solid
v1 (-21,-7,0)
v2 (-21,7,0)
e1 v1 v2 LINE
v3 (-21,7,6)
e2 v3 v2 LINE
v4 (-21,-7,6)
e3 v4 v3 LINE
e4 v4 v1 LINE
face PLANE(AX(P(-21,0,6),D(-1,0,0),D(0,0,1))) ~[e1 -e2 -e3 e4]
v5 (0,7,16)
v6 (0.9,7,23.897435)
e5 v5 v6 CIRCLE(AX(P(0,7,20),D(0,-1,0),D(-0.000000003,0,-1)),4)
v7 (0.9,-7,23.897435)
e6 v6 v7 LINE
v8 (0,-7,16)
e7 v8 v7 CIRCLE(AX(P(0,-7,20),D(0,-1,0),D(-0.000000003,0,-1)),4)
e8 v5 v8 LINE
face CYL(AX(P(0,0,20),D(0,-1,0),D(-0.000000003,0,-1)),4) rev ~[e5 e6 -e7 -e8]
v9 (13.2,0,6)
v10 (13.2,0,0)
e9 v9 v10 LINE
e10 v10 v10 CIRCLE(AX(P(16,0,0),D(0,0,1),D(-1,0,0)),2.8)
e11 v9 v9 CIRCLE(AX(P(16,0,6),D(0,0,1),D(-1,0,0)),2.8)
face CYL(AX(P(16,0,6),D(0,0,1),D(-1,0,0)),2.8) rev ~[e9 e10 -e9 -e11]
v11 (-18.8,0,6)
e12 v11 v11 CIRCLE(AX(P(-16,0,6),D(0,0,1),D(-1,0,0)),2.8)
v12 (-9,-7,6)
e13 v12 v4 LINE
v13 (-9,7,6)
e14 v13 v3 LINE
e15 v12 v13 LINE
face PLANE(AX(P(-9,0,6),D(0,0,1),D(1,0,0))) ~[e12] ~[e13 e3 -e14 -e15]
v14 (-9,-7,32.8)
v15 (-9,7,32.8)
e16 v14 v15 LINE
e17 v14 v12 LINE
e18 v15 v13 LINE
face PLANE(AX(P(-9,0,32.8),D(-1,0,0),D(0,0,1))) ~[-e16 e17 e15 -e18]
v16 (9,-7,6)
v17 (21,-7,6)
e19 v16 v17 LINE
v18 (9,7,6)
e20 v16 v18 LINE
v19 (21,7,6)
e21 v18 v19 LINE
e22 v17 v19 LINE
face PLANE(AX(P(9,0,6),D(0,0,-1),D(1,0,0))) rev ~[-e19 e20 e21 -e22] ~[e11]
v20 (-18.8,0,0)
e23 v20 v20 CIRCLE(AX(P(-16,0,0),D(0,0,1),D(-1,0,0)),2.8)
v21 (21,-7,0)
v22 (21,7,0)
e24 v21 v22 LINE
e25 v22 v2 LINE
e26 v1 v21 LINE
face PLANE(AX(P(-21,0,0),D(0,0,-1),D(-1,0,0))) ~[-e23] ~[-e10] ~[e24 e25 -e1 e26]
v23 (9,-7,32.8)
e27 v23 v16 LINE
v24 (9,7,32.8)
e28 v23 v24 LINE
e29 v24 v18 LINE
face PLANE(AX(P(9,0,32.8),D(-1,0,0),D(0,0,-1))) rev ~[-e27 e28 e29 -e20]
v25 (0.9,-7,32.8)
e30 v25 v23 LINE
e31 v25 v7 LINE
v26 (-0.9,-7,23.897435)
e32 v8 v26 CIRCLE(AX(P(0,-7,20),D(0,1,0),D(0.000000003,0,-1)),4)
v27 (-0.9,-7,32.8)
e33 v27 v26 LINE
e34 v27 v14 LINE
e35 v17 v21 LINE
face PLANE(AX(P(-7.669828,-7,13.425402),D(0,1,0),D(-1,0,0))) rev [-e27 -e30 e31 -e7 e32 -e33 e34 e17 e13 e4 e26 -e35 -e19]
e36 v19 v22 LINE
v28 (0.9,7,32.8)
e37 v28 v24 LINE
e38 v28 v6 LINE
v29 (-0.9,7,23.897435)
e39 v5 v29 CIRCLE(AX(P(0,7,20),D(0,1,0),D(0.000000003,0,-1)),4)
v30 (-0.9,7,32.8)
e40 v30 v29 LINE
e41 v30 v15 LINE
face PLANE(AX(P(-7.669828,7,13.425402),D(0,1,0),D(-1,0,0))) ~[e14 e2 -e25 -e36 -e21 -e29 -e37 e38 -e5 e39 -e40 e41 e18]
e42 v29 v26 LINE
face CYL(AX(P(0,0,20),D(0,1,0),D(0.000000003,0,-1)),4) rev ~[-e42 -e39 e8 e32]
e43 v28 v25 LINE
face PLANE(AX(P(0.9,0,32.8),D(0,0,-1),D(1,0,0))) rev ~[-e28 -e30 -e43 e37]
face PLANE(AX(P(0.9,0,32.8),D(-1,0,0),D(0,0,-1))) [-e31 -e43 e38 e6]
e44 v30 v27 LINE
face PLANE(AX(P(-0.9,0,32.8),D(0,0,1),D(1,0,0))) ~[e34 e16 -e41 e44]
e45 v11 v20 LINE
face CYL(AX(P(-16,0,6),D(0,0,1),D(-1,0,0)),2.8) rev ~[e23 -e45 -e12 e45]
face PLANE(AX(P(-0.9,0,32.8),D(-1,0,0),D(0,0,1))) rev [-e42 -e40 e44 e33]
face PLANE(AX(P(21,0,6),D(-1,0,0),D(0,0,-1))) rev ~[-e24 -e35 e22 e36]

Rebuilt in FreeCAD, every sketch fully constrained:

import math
import FreeCAD as App
import Part
import Sketcher
from FreeCAD import Vector

doc = App.newDocument("Part")
params = doc.addObject("Spreadsheet::Sheet", "Params")
for row, (alias, value) in enumerate([
    ("sketch1_radius", "4 mm"),
    ("sketch1_width", "21 mm"),
    ("sketch1_width2", "12 mm"),
    ("sketch1_height", "16 mm"),
    ("sketch1_height2", "6 mm"),
    ("pad1_length", "7 mm"),
    ("pad1_length2", "7 mm"),
    ("sketch2_diameter", "5.6 mm"),
    ("pocket1_length", "100 mm"),
], start=1):
    params.set(f"A{row}", alias)
    params.set(f"B{row}", "=" + value)
    params.setAlias(f"B{row}", alias)

body = doc.addObject("PartDesign::Body", "Body")

# Sketch on XZ plane
sketch1 = doc.addObject("Sketcher::SketchObject", "Sketch")
body.addObject(sketch1)
sketch1.AttachmentSupport = (doc.XZ_Plane, [""])
sketch1.MapMode = "FlatFace"
sketch1.addGeometry(Part.LineSegment(Vector(9, 32.8, 0), Vector(0.9, 32.8, 0)), False)
sketch1.addGeometry(Part.LineSegment(Vector(0.9, 32.8, 0), Vector(0.9, 23.897435, 0)), False)
sketch1.addGeometry(Part.ArcOfCircle(Part.Circle(Vector(0, 20, 0), Vector(0, 0, 1), 4), math.radians(-90), math.radians(76.997122)), False)
sketch1.addGeometry(Part.LineSegment(Vector(0, 16, 0), Vector(0, 0, 0)), False)
sketch1.addGeometry(Part.LineSegment(Vector(0, 0, 0), Vector(21, 0, 0)), False)
sketch1.addGeometry(Part.LineSegment(Vector(21, 0, 0), Vector(21, 6, 0)), False)
sketch1.addGeometry(Part.LineSegment(Vector(21, 6, 0), Vector(9, 6, 0)), False)
sketch1.addGeometry(Part.LineSegment(Vector(9, 6, 0), Vector(9, 32.8, 0)), False)
sketch1.addConstraint(Sketcher.Constraint("Coincident", 0, 2, 1, 1))
sketch1.addConstraint(Sketcher.Constraint("Coincident", 1, 2, 2, 2))
sketch1.addConstraint(Sketcher.Constraint("Coincident", 2, 1, 3, 1))
sketch1.addConstraint(Sketcher.Constraint("Coincident", 3, 2, 4, 1))
sketch1.addConstraint(Sketcher.Constraint("Coincident", 4, 2, 5, 1))
sketch1.addConstraint(Sketcher.Constraint("Coincident", 5, 2, 6, 1))
sketch1.addConstraint(Sketcher.Constraint("Coincident", 6, 2, 7, 1))
sketch1.addConstraint(Sketcher.Constraint("Coincident", 7, 2, 0, 1))
sketch1.addConstraint(Sketcher.Constraint("Horizontal", 0))
sketch1.addConstraint(Sketcher.Constraint("Vertical", 1))
sketch1.addConstraint(Sketcher.Constraint("Vertical", 3))
sketch1.addConstraint(Sketcher.Constraint("Horizontal", 4))
sketch1.addConstraint(Sketcher.Constraint("Vertical", 5))
sketch1.addConstraint(Sketcher.Constraint("Horizontal", 6))
sketch1.addConstraint(Sketcher.Constraint("Vertical", 7))
sketch1.addConstraint(Sketcher.Constraint("Coincident", 3, 2, -1, 1))
sketch1.addConstraint(Sketcher.Constraint("PointOnObject", 2, 3, -2))
sketch1.addConstraint(Sketcher.Constraint("Radius", 2, 4.0))
sketch1.addConstraint(Sketcher.Constraint("DistanceX", 4, 1, 4, 2, 21.0))
sketch1.addConstraint(Sketcher.Constraint("DistanceX", 6, 2, 6, 1, 12.0))
sketch1.addConstraint(Sketcher.Constraint("DistanceY", 3, 2, 3, 1, 16.0))
sketch1.addConstraint(Sketcher.Constraint("DistanceY", 5, 1, 5, 2, 6.0))
sketch1.addConstraint(Sketcher.Constraint("DistanceX", 0, 2, 0, 1, 8.1))
sketch1.addConstraint(Sketcher.Constraint("DistanceY", 7, 1, 7, 2, 26.8))
sketch1.setExpression("Constraints[17]", "Params.sketch1_radius")
sketch1.setExpression("Constraints[18]", "Params.sketch1_width")
sketch1.setExpression("Constraints[19]", "Params.sketch1_width2")
sketch1.setExpression("Constraints[20]", "Params.sketch1_height")
sketch1.setExpression("Constraints[21]", "Params.sketch1_height2")
pad1 = doc.addObject("PartDesign::Pad", "Pad")
body.addObject(pad1)
pad1.Profile = sketch1
pad1.Type = "TwoLengths"
pad1.setExpression("Length", "Params.pad1_length")
pad1.setExpression("Length2", "Params.pad1_length2")
doc.recompute()

mirrored = doc.addObject("PartDesign::Mirrored", "Mirrored")
body.addObject(mirrored)
mirrored.Originals = [pad1]
mirrored.MirrorPlane = (doc.YZ_Plane, [""])
body.Tip = mirrored

# Sketch on XY plane
sketch2 = doc.addObject("Sketcher::SketchObject", "Sketch001")
body.addObject(sketch2)
sketch2.AttachmentSupport = (doc.XY_Plane, [""])
sketch2.MapMode = "FlatFace"
sketch2.AttachmentOffset = App.Placement(Vector(0, 0, 6), App.Rotation())
sketch2.addGeometry(Part.Circle(Vector(-16, 0, 0), Vector(0, 0, 1), 2.8), False)
sketch2.addGeometry(Part.Circle(Vector(16, 0, 0), Vector(0, 0, 1), 2.8), False)
sketch2.addConstraint(Sketcher.Constraint("Equal", 0, 1))
sketch2.addConstraint(Sketcher.Constraint("Symmetric", 0, 3, 1, 3, -1, 1))
sketch2.addConstraint(Sketcher.Constraint("PointOnObject", 0, 3, -1))
sketch2.addConstraint(Sketcher.Constraint("Diameter", 0, 5.6))
sketch2.addConstraint(Sketcher.Constraint("DistanceX", 0, 3, -1, 1, 16.0))
sketch2.setExpression("Constraints[3]", "Params.sketch2_diameter")
pocket1 = doc.addObject("PartDesign::Pocket", "Pocket")
body.addObject(pocket1)
pocket1.Profile = sketch2
pocket1.setExpression("Length", "Params.pocket1_length")

doc.recompute()
